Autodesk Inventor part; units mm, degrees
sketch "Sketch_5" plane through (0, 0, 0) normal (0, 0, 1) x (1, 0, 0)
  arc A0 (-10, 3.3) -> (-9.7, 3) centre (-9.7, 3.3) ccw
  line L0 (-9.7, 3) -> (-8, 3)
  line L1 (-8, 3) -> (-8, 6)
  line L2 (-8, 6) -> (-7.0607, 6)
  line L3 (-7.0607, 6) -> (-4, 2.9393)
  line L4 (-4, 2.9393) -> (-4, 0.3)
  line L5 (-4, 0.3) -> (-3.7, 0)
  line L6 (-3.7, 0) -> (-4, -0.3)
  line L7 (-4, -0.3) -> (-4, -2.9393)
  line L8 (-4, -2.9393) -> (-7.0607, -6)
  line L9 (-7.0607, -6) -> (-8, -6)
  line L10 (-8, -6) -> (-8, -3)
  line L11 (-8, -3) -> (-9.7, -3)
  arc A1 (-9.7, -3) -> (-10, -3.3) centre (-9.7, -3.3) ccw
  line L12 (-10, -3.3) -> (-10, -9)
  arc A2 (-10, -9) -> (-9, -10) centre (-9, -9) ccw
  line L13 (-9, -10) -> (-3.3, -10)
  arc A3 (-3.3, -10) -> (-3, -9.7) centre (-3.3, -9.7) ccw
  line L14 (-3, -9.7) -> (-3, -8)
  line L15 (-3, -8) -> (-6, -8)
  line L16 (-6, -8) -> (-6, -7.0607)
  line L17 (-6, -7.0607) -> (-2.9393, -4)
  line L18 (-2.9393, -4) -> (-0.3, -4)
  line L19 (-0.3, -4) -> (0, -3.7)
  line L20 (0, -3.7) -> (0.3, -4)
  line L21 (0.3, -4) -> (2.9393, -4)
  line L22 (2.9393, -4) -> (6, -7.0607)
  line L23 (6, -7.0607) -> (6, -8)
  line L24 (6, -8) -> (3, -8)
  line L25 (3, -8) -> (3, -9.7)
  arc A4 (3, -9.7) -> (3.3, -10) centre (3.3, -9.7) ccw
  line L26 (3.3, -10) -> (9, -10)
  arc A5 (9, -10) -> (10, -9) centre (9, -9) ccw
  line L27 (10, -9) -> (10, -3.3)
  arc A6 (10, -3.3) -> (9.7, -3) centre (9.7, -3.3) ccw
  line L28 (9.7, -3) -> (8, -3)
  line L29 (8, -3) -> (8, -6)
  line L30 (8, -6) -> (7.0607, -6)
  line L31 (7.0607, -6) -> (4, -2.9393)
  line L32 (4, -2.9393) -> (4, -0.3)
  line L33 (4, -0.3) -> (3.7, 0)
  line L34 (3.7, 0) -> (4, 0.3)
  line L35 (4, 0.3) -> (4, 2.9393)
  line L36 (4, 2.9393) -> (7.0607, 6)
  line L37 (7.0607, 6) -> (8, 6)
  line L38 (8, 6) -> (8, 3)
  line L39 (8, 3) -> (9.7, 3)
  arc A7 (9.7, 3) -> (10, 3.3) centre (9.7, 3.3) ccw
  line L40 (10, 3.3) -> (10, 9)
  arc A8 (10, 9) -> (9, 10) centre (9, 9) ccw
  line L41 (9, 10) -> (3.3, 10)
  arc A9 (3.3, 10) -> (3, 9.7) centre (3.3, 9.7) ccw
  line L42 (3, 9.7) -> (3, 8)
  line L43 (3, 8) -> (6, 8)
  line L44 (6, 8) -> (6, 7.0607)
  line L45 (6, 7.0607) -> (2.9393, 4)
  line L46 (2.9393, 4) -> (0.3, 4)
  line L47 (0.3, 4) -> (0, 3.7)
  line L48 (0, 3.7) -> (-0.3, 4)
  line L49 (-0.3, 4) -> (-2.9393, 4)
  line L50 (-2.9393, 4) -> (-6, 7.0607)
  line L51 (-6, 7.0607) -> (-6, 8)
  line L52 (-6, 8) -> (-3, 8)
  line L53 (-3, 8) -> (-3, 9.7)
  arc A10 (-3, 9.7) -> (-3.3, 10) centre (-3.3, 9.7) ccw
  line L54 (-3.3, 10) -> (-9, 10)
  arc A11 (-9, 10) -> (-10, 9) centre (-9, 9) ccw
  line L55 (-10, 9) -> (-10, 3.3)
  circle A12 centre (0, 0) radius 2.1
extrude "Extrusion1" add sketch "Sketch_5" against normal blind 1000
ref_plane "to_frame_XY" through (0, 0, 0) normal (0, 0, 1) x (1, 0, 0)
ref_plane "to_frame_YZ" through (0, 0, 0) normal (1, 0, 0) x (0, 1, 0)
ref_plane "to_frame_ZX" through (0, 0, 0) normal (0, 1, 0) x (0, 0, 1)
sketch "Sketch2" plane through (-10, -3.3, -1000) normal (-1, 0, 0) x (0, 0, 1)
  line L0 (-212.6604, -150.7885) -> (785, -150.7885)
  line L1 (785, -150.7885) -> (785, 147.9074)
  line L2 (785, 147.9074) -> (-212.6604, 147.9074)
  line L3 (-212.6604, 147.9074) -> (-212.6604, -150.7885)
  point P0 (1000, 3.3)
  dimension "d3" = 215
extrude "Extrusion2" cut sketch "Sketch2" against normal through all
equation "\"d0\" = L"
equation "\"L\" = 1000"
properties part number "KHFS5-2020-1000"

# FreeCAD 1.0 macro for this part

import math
import FreeCAD as App
import Part
import Sketcher
from FreeCAD import Vector

doc = App.newDocument("Part")
body = doc.addObject("PartDesign::Body", "Body")

# Sketch on XY plane
sketch1 = doc.addObject("Sketcher::SketchObject", "Sketch")
body.addObject(sketch1)
sketch1.AttachmentSupport = (doc.XY_Plane, [""])
sketch1.MapMode = "FlatFace"
sketch1.addGeometry([
    Part.LineSegment(Vector(-10, 9, 0), Vector(-10, 3.3, 0)),  # 0
    Part.ArcOfCircle(Part.Circle(Vector(-9.7, 3.3, 0), Vector(0, 0, 1), 0.3), math.radians(180), math.radians(270)),  # 1
    Part.LineSegment(Vector(-9.7, 3, 0), Vector(-8, 3, 0)),  # 2
    Part.LineSegment(Vector(-8, 3, 0), Vector(-8, 6, 0)),  # 3
    Part.LineSegment(Vector(-8, 6, 0), Vector(-7.0607, 6, 0)),  # 4
    Part.LineSegment(Vector(-7.0607, 6, 0), Vector(-4, 2.9393, 0)),  # 5
    Part.LineSegment(Vector(-4, 2.9393, 0), Vector(-4, 0.3, 0)),  # 6
    Part.LineSegment(Vector(-4, 0.3, 0), Vector(-3.7, 0, 0)),  # 7
    Part.LineSegment(Vector(-3.7, 0, 0), Vector(-4, -0.3, 0)),  # 8
    Part.LineSegment(Vector(-4, -0.3, 0), Vector(-4, -2.9393, 0)),  # 9
    Part.LineSegment(Vector(-4, -2.9393, 0), Vector(-7.0607, -6, 0)),  # 10
    Part.LineSegment(Vector(-7.0607, -6, 0), Vector(-8, -6, 0)),  # 11
    Part.LineSegment(Vector(-8, -6, 0), Vector(-8, -3, 0)),  # 12
    Part.LineSegment(Vector(-8, -3, 0), Vector(-9.7, -3, 0)),  # 13
    Part.ArcOfCircle(Part.Circle(Vector(-9.7, -3.3, 0), Vector(0, 0, 1), 0.3), math.radians(90), math.radians(180)),  # 14
    Part.LineSegment(Vector(-10, -3.3, 0), Vector(-10, -9, 0)),  # 15
    Part.ArcOfCircle(Part.Circle(Vector(-9, -9, 0), Vector(0, 0, 1), 1), math.radians(180), math.radians(270)),  # 16
    Part.LineSegment(Vector(-9, -10, 0), Vector(-3.3, -10, 0)),  # 17
    Part.ArcOfCircle(Part.Circle(Vector(-3.3, -9.7, 0), Vector(0, 0, 1), 0.3), math.radians(-90), math.radians(0)),  # 18
    Part.LineSegment(Vector(-3, -9.7, 0), Vector(-3, -8, 0)),  # 19
    Part.LineSegment(Vector(-3, -8, 0), Vector(-6, -8, 0)),  # 20
    Part.LineSegment(Vector(-6, -8, 0), Vector(-6, -7.0607, 0)),  # 21
    Part.LineSegment(Vector(-6, -7.0607, 0), Vector(-2.9393, -4, 0)),  # 22
    Part.LineSegment(Vector(-2.9393, -4, 0), Vector(-0.3, -4, 0)),  # 23
    Part.LineSegment(Vector(-0.3, -4, 0), Vector(0, -3.7, 0)),  # 24
    Part.LineSegment(Vector(0, -3.7, 0), Vector(0.3, -4, 0)),  # 25
    Part.LineSegment(Vector(0.3, -4, 0), Vector(2.9393, -4, 0)),  # 26
    Part.LineSegment(Vector(2.9393, -4, 0), Vector(6, -7.0607, 0)),  # 27
    Part.LineSegment(Vector(6, -7.0607, 0), Vector(6, -8, 0)),  # 28
    Part.LineSegment(Vector(6, -8, 0), Vector(3, -8, 0)),  # 29
    Part.LineSegment(Vector(3, -8, 0), Vector(3, -9.7, 0)),  # 30
    Part.ArcOfCircle(Part.Circle(Vector(3.3, -9.7, 0), Vector(0, 0, 1), 0.3), math.radians(180), math.radians(270)),  # 31
    Part.LineSegment(Vector(3.3, -10, 0), Vector(9, -10, 0)),  # 32
    Part.ArcOfCircle(Part.Circle(Vector(9, -9, 0), Vector(0, 0, 1), 1), math.radians(-90), math.radians(0)),  # 33
    Part.LineSegment(Vector(10, -9, 0), Vector(10, -3.3, 0)),  # 34
    Part.ArcOfCircle(Part.Circle(Vector(9.7, -3.3, 0), Vector(0, 0, 1), 0.3), math.radians(0), math.radians(90)),  # 35
    Part.LineSegment(Vector(9.7, -3, 0), Vector(8, -3, 0)),  # 36
    Part.LineSegment(Vector(8, -3, 0), Vector(8, -6, 0)),  # 37
    Part.LineSegment(Vector(8, -6, 0), Vector(7.0607, -6, 0)),  # 38
    Part.LineSegment(Vector(7.0607, -6, 0), Vector(4, -2.9393, 0)),  # 39
    Part.LineSegment(Vector(4, -2.9393, 0), Vector(4, -0.3, 0)),  # 40
    Part.LineSegment(Vector(4, -0.3, 0), Vector(3.7, 0, 0)),  # 41
    Part.LineSegment(Vector(3.7, 0, 0), Vector(4, 0.3, 0)),  # 42
    Part.LineSegment(Vector(4, 0.3, 0), Vector(4, 2.9393, 0)),  # 43
    Part.LineSegment(Vector(4, 2.9393, 0), Vector(7.0607, 6, 0)),  # 44
    Part.LineSegment(Vector(7.0607, 6, 0), Vector(8, 6, 0)),  # 45
    Part.LineSegment(Vector(8, 6, 0), Vector(8, 3, 0)),  # 46
    Part.LineSegment(Vector(8, 3, 0), Vector(9.7, 3, 0)),  # 47
    Part.ArcOfCircle(Part.Circle(Vector(9.7, 3.3, 0), Vector(0, 0, 1), 0.3), math.radians(-90), math.radians(0)),  # 48
    Part.LineSegment(Vector(10, 3.3, 0), Vector(10, 9, 0)),  # 49
    Part.ArcOfCircle(Part.Circle(Vector(9, 9, 0), Vector(0, 0, 1), 1), math.radians(0), math.radians(90)),  # 50
    Part.LineSegment(Vector(9, 10, 0), Vector(3.3, 10, 0)),  # 51
    Part.ArcOfCircle(Part.Circle(Vector(3.3, 9.7, 0), Vector(0, 0, 1), 0.3), math.radians(90), math.radians(180)),  # 52
    Part.LineSegment(Vector(3, 9.7, 0), Vector(3, 8, 0)),  # 53
    Part.LineSegment(Vector(3, 8, 0), Vector(6, 8, 0)),  # 54
    Part.LineSegment(Vector(6, 8, 0), Vector(6, 7.0607, 0)),  # 55
    Part.LineSegment(Vector(6, 7.0607, 0), Vector(2.9393, 4, 0)),  # 56
    Part.LineSegment(Vector(2.9393, 4, 0), Vector(0.3, 4, 0)),  # 57
    Part.LineSegment(Vector(0.3, 4, 0), Vector(0, 3.7, 0)),  # 58
    Part.LineSegment(Vector(0, 3.7, 0), Vector(-0.3, 4, 0)),  # 59
    Part.LineSegment(Vector(-0.3, 4, 0), Vector(-2.9393, 4, 0)),  # 60
    Part.LineSegment(Vector(-2.9393, 4, 0), Vector(-6, 7.0607, 0)),  # 61
    Part.LineSegment(Vector(-6, 7.0607, 0), Vector(-6, 8, 0)),  # 62
    Part.LineSegment(Vector(-6, 8, 0), Vector(-3, 8, 0)),  # 63
    Part.LineSegment(Vector(-3, 8, 0), Vector(-3, 9.7, 0)),  # 64
    Part.ArcOfCircle(Part.Circle(Vector(-3.3, 9.7, 0), Vector(0, 0, 1), 0.3), math.radians(0), math.radians(90)),  # 65
    Part.LineSegment(Vector(-3.3, 10, 0), Vector(-9, 10, 0)),  # 66
    Part.ArcOfCircle(Part.Circle(Vector(-9, 9, 0), Vector(0, 0, 1), 1), math.radians(90), math.radians(180)),  # 67
    Part.Circle(Vector(0, 0, 0), Vector(0, 0, 1), 2.1),  # 68
], False)
sketch1.addConstraint([
    Sketcher.Constraint("Tangent", 0, 2, 1, 1),
    Sketcher.Constraint("Tangent", 1, 2, 2, 1),
    Sketcher.Constraint("Coincident", 2, 2, 3, 1),
    Sketcher.Constraint("Coincident", 3, 2, 4, 1),
    Sketcher.Constraint("Coincident", 4, 2, 5, 1),
    Sketcher.Constraint("Coincident", 5, 2, 6, 1),
    Sketcher.Constraint("Coincident", 6, 2, 7, 1),
    Sketcher.Constraint("Coincident", 7, 2, 8, 1),
    Sketcher.Constraint("Coincident", 8, 2, 9, 1),
    Sketcher.Constraint("Coincident", 9, 2, 10, 1),
    Sketcher.Constraint("Coincident", 10, 2, 11, 1),
    Sketcher.Constraint("Coincident", 11, 2, 12, 1),
    Sketcher.Constraint("Coincident", 12, 2, 13, 1),
    Sketcher.Constraint("Tangent", 13, 2, 14, 1),
    Sketcher.Constraint("Tangent", 14, 2, 15, 1),
    Sketcher.Constraint("Tangent", 15, 2, 16, 1),
    Sketcher.Constraint("Tangent", 16, 2, 17, 1),
    Sketcher.Constraint("Tangent", 17, 2, 18, 1),
    Sketcher.Constraint("Tangent", 18, 2, 19, 1),
    Sketcher.Constraint("Coincident", 19, 2, 20, 1),
    Sketcher.Constraint("Coincident", 20, 2, 21, 1),
    Sketcher.Constraint("Coincident", 21, 2, 22, 1),
    Sketcher.Constraint("Coincident", 22, 2, 23, 1),
    Sketcher.Constraint("Coincident", 23, 2, 24, 1),
    Sketcher.Constraint("Coincident", 24, 2, 25, 1),
    Sketcher.Constraint("Coincident", 25, 2, 26, 1),
    Sketcher.Constraint("Coincident", 26, 2, 27, 1),
    Sketcher.Constraint("Coincident", 27, 2, 28, 1),
    Sketcher.Constraint("Coincident", 28, 2, 29, 1),
    Sketcher.Constraint("Coincident", 29, 2, 30, 1),
    Sketcher.Constraint("Tangent", 30, 2, 31, 1),
    Sketcher.Constraint("Tangent", 31, 2, 32, 1),
    Sketcher.Constraint("Tangent", 32, 2, 33, 1),
    Sketcher.Constraint("Tangent", 33, 2, 34, 1),
    Sketcher.Constraint("Tangent", 34, 2, 35, 1),
    Sketcher.Constraint("Tangent", 35, 2, 36, 1),
    Sketcher.Constraint("Coincident", 36, 2, 37, 1),
    Sketcher.Constraint("Coincident", 37, 2, 38, 1),
    Sketcher.Constraint("Coincident", 38, 2, 39, 1),
    Sketcher.Constraint("Coincident", 39, 2, 40, 1),
    Sketcher.Constraint("Coincident", 40, 2, 41, 1),
    Sketcher.Constraint("Coincident", 41, 2, 42, 1),
    Sketcher.Constraint("Coincident", 42, 2, 43, 1),
    Sketcher.Constraint("Coincident", 43, 2, 44, 1),
    Sketcher.Constraint("Coincident", 44, 2, 45, 1),
    Sketcher.Constraint("Coincident", 45, 2, 46, 1),
    Sketcher.Constraint("Coincident", 46, 2, 47, 1),
    Sketcher.Constraint("Tangent", 47, 2, 48, 1),
    Sketcher.Constraint("Tangent", 48, 2, 49, 1),
    Sketcher.Constraint("Tangent", 49, 2, 50, 1),
    Sketcher.Constraint("Tangent", 50, 2, 51, 1),
    Sketcher.Constraint("Tangent", 51, 2, 52, 1),
    Sketcher.Constraint("Tangent", 52, 2, 53, 1),
    Sketcher.Constraint("Coincident", 53, 2, 54, 1),
    Sketcher.Constraint("Coincident", 54, 2, 55, 1),
    Sketcher.Constraint("Coincident", 55, 2, 56, 1),
    Sketcher.Constraint("Coincident", 56, 2, 57, 1),
    Sketcher.Constraint("Coincident", 57, 2, 58, 1),
    Sketcher.Constraint("Coincident", 58, 2, 59, 1),
    Sketcher.Constraint("Coincident", 59, 2, 60, 1),
    Sketcher.Constraint("Coincident", 60, 2, 61, 1),
    Sketcher.Constraint("Coincident", 61, 2, 62, 1),
    Sketcher.Constraint("Coincident", 62, 2, 63, 1),
    Sketcher.Constraint("Coincident", 63, 2, 64, 1),
    Sketcher.Constraint("Tangent", 64, 2, 65, 1),
    Sketcher.Constraint("Tangent", 65, 2, 66, 1),
    Sketcher.Constraint("Tangent", 66, 2, 67, 1),
    Sketcher.Constraint("Tangent", 67, 2, 0, 1),
    Sketcher.Constraint("Vertical", 0),
    Sketcher.Constraint("Horizontal", 2),
    Sketcher.Constraint("Vertical", 3),
    Sketcher.Constraint("Horizontal", 4),
    Sketcher.Constraint("Vertical", 6),
    Sketcher.Constraint("Vertical", 9),
    Sketcher.Constraint("Horizontal", 11),
    Sketcher.Constraint("Vertical", 12),
    Sketcher.Constraint("Horizontal", 13),
    Sketcher.Constraint("Vertical", 15),
    Sketcher.Constraint("Horizontal", 17),
    Sketcher.Constraint("Vertical", 19),
    Sketcher.Constraint("Horizontal", 20),
    Sketcher.Constraint("Vertical", 21),
    Sketcher.Constraint("Horizontal", 23),
    Sketcher.Constraint("Horizontal", 26),
    Sketcher.Constraint("Vertical", 28),
    Sketcher.Constraint("Horizontal", 29),
    Sketcher.Constraint("Vertical", 30),
    Sketcher.Constraint("Horizontal", 32),
    Sketcher.Constraint("Vertical", 34),
    Sketcher.Constraint("Horizontal", 36),
    Sketcher.Constraint("Vertical", 37),
    Sketcher.Constraint("Horizontal", 38),
    Sketcher.Constraint("Vertical", 40),
    Sketcher.Constraint("Vertical", 43),
    Sketcher.Constraint("Horizontal", 45),
    Sketcher.Constraint("Vertical", 46),
    Sketcher.Constraint("Horizontal", 47),
    Sketcher.Constraint("Vertical", 49),
    Sketcher.Constraint("Horizontal", 51),
    Sketcher.Constraint("Vertical", 53),
    Sketcher.Constraint("Horizontal", 54),
    Sketcher.Constraint("Vertical", 55),
    Sketcher.Constraint("Horizontal", 57),
    Sketcher.Constraint("Horizontal", 60),
    Sketcher.Constraint("Vertical", 62),
    Sketcher.Constraint("Horizontal", 63),
    Sketcher.Constraint("Vertical", 64),
    Sketcher.Constraint("Horizontal", 66),
    Sketcher.Constraint("Coincident", 68, 3, -1, 1),
    Sketcher.Constraint("Equal", 1, 14),
    Sketcher.Constraint("Equal", 14, 18),
    Sketcher.Constraint("Equal", 18, 31),
    Sketcher.Constraint("Equal", 16, 33),
    Sketcher.Constraint("Equal", 31, 35),
    Sketcher.Constraint("Equal", 35, 48),
    Sketcher.Constraint("Equal", 33, 50),
    Sketcher.Constraint("Equal", 48, 52),
    Sketcher.Constraint("Equal", 52, 65),
    Sketcher.Constraint("Equal", 50, 67),
    Sketcher.Constraint("Symmetric", 1, 3, 35, 3, -1, 1),
    Sketcher.Constraint("Symmetric", 14, 3, 48, 3, -1, 1),
    Sketcher.Constraint("Symmetric", 18, 3, 52, 3, -1, 1),
    Sketcher.Constraint("Symmetric", 31, 3, 65, 3, -1, 1),
    Sketcher.Constraint("Symmetric", 3, 2, 37, 2, -1, 1),
    Sketcher.Constraint("Symmetric", 5, 2, 39, 2, -1, 1),
    Sketcher.Constraint("Symmetric", 7, 2, 41, 2, -1, 1),
    Sketcher.Constraint("Symmetric", 8, 2, 42, 2, -1, 1),
    Sketcher.Constraint("Symmetric", 10, 2, 44, 2, -1, 1),
    Sketcher.Constraint("Symmetric", 20, 2, 54, 2, -1, 1),
    Sketcher.Constraint("Symmetric", 22, 2, 56, 2, -1, 1),
    Sketcher.Constraint("Symmetric", 24, 2, 58, 2, -1, 1),
    Sketcher.Constraint("Symmetric", 25, 2, 59, 2, -1, 1),
    Sketcher.Constraint("Symmetric", 27, 2, 61, 2, -1, 1),
    Sketcher.Constraint("Symmetric", 18, 3, 31, 3, -2),
    Sketcher.Constraint("Symmetric", 14, 3, 35, 3, -2),
    Sketcher.Constraint("Symmetric", 23, 2, 25, 2, -2),
    Sketcher.Constraint("Symmetric", 21, 2, 27, 2, -2),
    Sketcher.Constraint("Symmetric", 11, 2, 37, 2, -2),
    Sketcher.Constraint("Symmetric", 9, 2, 39, 2, -2),
    Sketcher.Constraint("PointOnObject", 7, 2, -1),
    Sketcher.Constraint("PointOnObject", 24, 2, -2),
    Sketcher.Constraint("Parallel", 5, 7),
    Sketcher.Constraint("Perpendicular", 7, 8),
    Sketcher.Constraint("Parallel", 8, 10),
    Sketcher.Constraint("Parallel", 10, 22),
    Sketcher.Constraint("Parallel", 22, 24),
    Sketcher.Constraint("Perpendicular", 24, 25),
    Sketcher.Constraint("Parallel", 25, 27),
    Sketcher.Constraint("Parallel", 27, 39),
    Sketcher.Constraint("Parallel", 39, 41),
    Sketcher.Constraint("Parallel", 42, 44),
    Sketcher.Constraint("Parallel", 44, 56),
    Sketcher.Constraint("Parallel", 56, 58),
    Sketcher.Constraint("Parallel", 59, 61),
    Sketcher.Constraint("Horizontal", 20, 2, 28, 2),
    Sketcher.Constraint("Horizontal", 54, 2, 62, 2),
    Sketcher.Constraint("Vertical", 37, 2, 45, 2),
    Sketcher.Constraint("Equal", 66, 0),
    Sketcher.Constraint("Equal", 63, 3),
    Sketcher.Constraint("Equal", 60, 6),
    Sketcher.Constraint("Equal", 47, 19),
    Sketcher.Constraint("Equal", 45, 21),
    Sketcher.Constraint("Equal", 10, 22),
    Sketcher.Constraint("Equal", 8, 24),
    Sketcher.Constraint("Radius", 16, 1.0),
    Sketcher.Constraint("Diameter", 68, 4.2),
    Sketcher.Constraint("Radius", 1, 0.3),
    Sketcher.Constraint("DistanceX", 20, 2, 20, 1, 3.0),
    Sketcher.Constraint("DistanceX", 2, 1, 2, 2, 1.7),
    Sketcher.Constraint("DistanceX", 17, 1, 17, 2, 5.7),
    Sketcher.Constraint("DistanceX", 16, 3, -1, 1, 9.0),
    Sketcher.Constraint("DistanceX", 5, 2, -1, 1, 4.0),
    Sketcher.Constraint("DistanceY", -1, 1, 6, 2, 0.3),
    Sketcher.Constraint("DistanceX", 4, 1, 4, 2, 0.9393),
])
pad1 = doc.addObject("PartDesign::Pad", "Pad")
body.addObject(pad1)
pad1.Profile = sketch1
pad1.Length = 1000
pad1.Reversed = True

# Sketch on YZ plane
sketch2 = doc.addObject("Sketcher::SketchObject", "Sketch001")
body.addObject(sketch2)
sketch2.AttachmentSupport = (doc.YZ_Plane, [""])
sketch2.MapMode = "FlatFace"
sketch2.AttachmentOffset = App.Placement(Vector(0, 0, -10), App.Rotation())
sketch2.addGeometry([
    Part.LineSegment(Vector(144.6074, -1212.6604, 0), Vector(-154.0885, -1212.6604, 0)),
    Part.LineSegment(Vector(-154.0885, -1212.6604, 0), Vector(-154.0885, -215, 0)),
    Part.LineSegment(Vector(-154.0885, -215, 0), Vector(144.6074, -215, 0)),
    Part.LineSegment(Vector(144.6074, -215, 0), Vector(144.6074, -1212.6604, 0)),
], False)
sketch2.addConstraint([
    Sketcher.Constraint("Coincident", 0, 2, 1, 1),
    Sketcher.Constraint("Coincident", 1, 2, 2, 1),
    Sketcher.Constraint("Coincident", 2, 2, 3, 1),
    Sketcher.Constraint("Coincident", 3, 2, 0, 1),
    Sketcher.Constraint("Horizontal", 0),
    Sketcher.Constraint("Vertical", 1),
    Sketcher.Constraint("Horizontal", 2),
    Sketcher.Constraint("Vertical", 3),
    Sketcher.Constraint("DistanceY", 1, 2, -1, 1, 215.0),
    Sketcher.Constraint("DistanceX", 0, 2, 0, 1, 298.696),
    Sketcher.Constraint("DistanceY", 1, 1, 1, 2, 997.6604),
    Sketcher.Constraint("DistanceX", 0, 2, -1, 1, 154.0885),
])
pocket1 = doc.addObject("PartDesign::Pocket", "Pocket")
body.addObject(pocket1)
pocket1.Profile = sketch2
pocket1.Type = "ThroughAll"
pocket1.Reversed = True

doc.recompute()
